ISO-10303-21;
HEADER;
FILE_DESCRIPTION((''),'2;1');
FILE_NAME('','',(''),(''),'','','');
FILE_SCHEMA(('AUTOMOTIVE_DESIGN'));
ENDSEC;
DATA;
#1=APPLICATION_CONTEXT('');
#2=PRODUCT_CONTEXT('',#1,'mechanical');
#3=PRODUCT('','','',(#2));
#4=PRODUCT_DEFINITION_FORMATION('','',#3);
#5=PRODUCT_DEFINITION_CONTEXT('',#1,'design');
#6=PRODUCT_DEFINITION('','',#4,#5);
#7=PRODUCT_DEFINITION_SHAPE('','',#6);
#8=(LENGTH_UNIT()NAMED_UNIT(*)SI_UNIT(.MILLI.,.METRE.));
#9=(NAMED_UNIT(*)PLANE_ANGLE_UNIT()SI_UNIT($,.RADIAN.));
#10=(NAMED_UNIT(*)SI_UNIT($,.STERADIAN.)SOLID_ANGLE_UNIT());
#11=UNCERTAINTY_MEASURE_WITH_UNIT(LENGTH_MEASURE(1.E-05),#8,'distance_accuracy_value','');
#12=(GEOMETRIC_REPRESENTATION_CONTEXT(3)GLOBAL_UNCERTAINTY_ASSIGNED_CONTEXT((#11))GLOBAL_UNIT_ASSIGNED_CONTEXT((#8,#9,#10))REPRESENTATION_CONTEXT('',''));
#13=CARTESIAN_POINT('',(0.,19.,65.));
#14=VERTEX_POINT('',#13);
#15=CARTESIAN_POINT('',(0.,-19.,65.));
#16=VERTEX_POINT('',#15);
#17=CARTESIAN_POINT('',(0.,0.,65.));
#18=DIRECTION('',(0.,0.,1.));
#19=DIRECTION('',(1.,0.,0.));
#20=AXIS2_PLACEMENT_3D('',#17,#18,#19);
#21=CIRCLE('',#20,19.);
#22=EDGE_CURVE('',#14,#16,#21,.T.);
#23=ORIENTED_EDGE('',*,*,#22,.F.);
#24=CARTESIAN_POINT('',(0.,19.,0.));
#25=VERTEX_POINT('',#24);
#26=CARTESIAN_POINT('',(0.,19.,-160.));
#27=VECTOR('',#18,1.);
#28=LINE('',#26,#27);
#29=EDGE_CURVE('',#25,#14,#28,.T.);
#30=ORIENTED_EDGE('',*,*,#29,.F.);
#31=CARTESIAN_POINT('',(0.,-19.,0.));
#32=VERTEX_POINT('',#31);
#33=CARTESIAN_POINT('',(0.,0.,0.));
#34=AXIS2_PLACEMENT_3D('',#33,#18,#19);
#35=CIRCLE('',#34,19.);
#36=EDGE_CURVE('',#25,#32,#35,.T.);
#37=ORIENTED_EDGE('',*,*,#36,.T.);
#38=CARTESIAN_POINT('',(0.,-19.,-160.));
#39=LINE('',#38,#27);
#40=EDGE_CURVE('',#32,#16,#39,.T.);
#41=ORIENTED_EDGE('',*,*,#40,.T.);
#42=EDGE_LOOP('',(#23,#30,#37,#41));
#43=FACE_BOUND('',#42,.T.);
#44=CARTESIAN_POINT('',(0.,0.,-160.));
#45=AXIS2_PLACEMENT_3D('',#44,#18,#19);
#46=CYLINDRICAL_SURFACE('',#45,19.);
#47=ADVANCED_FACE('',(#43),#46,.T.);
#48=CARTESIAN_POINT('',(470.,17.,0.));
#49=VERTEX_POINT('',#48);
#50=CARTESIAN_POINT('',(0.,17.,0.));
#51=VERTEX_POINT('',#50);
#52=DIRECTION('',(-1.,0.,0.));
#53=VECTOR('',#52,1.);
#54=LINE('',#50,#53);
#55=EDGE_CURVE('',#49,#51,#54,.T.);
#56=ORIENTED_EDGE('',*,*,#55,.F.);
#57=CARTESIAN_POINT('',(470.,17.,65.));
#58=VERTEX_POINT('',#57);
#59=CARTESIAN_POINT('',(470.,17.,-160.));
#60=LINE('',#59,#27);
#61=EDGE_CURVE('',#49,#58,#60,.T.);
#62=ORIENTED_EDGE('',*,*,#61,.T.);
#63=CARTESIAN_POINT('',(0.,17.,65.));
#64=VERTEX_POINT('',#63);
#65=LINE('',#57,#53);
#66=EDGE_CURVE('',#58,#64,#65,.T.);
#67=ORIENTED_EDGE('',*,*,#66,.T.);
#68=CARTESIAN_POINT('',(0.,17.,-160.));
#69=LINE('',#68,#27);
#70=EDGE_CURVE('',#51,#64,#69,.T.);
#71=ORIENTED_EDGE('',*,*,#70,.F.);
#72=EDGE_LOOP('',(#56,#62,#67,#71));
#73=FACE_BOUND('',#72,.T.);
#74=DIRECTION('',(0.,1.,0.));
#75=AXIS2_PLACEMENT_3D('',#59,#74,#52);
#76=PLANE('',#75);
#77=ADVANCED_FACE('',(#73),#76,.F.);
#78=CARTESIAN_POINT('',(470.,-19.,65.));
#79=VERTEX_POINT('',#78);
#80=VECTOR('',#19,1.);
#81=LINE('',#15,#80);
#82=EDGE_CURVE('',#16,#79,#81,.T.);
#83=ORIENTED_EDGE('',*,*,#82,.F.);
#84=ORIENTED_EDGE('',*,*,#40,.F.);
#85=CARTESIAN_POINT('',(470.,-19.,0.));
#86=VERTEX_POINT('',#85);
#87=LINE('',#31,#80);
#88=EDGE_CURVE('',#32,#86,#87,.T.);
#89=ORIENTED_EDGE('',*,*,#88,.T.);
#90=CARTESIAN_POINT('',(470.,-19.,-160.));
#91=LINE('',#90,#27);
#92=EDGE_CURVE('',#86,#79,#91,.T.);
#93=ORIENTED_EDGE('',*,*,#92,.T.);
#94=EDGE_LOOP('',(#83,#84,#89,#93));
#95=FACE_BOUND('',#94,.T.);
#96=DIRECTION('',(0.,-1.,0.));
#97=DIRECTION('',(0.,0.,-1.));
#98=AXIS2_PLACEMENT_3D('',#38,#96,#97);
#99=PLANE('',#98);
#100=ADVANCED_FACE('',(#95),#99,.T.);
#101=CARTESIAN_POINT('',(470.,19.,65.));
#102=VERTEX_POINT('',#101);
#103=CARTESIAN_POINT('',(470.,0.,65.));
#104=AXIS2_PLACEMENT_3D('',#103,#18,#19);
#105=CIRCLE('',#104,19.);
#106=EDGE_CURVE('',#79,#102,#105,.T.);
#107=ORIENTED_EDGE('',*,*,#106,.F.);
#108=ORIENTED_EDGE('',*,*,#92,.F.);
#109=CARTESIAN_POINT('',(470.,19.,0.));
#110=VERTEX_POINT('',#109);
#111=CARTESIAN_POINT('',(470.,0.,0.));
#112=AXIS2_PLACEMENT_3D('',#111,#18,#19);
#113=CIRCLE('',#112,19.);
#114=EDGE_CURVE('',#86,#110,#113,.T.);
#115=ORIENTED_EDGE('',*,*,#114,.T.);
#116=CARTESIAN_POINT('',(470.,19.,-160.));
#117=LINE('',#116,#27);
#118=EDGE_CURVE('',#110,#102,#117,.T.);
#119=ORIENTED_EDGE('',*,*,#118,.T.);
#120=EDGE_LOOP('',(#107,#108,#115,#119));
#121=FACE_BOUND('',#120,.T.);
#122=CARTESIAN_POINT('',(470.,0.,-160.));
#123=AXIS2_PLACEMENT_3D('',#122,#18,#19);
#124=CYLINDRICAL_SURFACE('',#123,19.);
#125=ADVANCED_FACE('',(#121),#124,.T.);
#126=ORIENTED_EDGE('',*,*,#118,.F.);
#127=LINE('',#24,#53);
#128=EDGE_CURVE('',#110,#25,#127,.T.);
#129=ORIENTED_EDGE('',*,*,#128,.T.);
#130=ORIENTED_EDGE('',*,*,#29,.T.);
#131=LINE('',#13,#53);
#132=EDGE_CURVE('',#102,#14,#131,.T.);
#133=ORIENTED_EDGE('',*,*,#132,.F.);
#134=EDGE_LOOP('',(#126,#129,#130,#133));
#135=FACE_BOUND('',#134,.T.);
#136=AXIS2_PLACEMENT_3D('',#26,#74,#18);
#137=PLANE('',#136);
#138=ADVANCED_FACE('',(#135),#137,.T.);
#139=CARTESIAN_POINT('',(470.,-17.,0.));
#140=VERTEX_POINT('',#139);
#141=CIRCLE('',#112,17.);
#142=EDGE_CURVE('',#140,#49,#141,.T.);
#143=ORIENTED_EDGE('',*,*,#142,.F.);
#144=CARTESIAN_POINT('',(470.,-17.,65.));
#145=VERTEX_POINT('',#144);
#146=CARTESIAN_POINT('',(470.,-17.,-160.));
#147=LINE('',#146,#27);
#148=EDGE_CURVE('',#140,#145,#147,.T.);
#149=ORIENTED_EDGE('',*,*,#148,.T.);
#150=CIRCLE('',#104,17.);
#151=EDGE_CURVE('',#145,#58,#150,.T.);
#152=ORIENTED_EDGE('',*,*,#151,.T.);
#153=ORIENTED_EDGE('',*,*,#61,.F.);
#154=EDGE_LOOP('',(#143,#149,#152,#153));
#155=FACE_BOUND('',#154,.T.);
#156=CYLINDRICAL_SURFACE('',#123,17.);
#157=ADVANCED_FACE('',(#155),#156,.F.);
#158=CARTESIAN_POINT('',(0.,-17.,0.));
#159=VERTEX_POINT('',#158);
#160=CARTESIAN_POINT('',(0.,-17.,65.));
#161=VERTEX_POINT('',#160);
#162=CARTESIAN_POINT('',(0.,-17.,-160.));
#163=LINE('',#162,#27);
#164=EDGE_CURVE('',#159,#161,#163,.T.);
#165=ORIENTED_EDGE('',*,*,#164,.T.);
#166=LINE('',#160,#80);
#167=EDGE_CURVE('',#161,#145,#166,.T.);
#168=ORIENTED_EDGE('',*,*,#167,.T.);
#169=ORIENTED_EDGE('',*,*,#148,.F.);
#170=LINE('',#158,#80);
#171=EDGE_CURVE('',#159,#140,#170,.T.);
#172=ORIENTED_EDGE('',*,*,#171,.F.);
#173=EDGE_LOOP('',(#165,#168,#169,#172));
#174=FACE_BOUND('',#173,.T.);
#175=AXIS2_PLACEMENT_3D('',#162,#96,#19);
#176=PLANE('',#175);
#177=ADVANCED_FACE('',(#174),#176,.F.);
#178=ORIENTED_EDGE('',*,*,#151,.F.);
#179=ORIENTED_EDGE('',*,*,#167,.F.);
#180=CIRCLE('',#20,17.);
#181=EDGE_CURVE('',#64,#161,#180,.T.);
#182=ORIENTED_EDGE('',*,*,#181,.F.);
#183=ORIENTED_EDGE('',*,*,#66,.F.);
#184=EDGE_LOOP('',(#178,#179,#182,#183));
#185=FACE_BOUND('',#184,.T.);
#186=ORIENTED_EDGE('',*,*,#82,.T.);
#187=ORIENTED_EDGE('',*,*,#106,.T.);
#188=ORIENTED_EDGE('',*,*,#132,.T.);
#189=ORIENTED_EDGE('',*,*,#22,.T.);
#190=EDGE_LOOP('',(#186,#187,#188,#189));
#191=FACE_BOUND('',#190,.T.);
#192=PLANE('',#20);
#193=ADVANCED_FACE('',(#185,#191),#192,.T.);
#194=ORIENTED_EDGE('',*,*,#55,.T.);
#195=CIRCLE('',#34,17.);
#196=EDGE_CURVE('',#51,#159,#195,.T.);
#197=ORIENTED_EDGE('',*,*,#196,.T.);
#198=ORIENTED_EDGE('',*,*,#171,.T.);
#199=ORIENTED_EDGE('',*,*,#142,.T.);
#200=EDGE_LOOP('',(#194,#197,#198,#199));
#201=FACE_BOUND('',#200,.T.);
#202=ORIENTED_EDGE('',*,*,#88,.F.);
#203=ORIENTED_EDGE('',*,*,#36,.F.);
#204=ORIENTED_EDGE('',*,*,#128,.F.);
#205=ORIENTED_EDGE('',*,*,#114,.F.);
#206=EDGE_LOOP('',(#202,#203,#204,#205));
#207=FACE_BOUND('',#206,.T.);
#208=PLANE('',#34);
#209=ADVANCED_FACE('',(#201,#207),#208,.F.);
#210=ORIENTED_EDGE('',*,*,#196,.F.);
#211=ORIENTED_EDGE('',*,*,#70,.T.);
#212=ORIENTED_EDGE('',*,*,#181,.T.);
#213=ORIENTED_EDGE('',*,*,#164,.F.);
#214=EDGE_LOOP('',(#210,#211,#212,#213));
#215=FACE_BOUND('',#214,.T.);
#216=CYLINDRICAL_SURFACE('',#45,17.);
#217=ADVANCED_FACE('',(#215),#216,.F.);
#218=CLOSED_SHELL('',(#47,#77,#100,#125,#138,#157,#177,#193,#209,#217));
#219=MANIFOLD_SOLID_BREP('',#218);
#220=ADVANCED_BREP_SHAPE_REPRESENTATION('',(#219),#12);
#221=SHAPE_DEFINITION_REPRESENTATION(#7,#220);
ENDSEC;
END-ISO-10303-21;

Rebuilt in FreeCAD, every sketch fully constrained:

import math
import FreeCAD as App
import Part
import Sketcher

V = App.Vector
Q = App.Units.Quantity

doc = App.newDocument("Part")
body = doc.addObject("PartDesign::Body", "Body")

# Sketch on XY plane
sketch1 = body.newObject("Sketcher::SketchObject", "Sketch")
sketch1.AttachmentSupport = (doc.getObject("XY_Plane"), [""])
sketch1.MapMode = "FlatFace"
sketch1.addGeometry(Part.LineSegment(V(470, 18, 0), V(0, 18, 0)), False)
sketch1.addGeometry(Part.ArcOfCircle(Part.Circle(V(0, 0, 0), V(0, 0, 1), 18), math.radians(90), math.radians(270)), False)
sketch1.addGeometry(Part.LineSegment(V(0, -18, 0), V(470, -18, 0)), False)
sketch1.addGeometry(Part.ArcOfCircle(Part.Circle(V(470, 0, 0), V(0, 0, 1), 18), math.radians(-90), math.radians(90)), False)
sketch1.addConstraint(Sketcher.Constraint("Tangent", 0, 2, 1, 1))
sketch1.addConstraint(Sketcher.Constraint("Tangent", 1, 2, 2, 1))
sketch1.addConstraint(Sketcher.Constraint("Tangent", 2, 2, 3, 1))
sketch1.addConstraint(Sketcher.Constraint("Tangent", 3, 2, 0, 1))
sketch1.addConstraint(Sketcher.Constraint("Horizontal", 0))
sketch1.addConstraint(Sketcher.Constraint("Horizontal", 2))
sketch1.addConstraint(Sketcher.Constraint("Coincident", 1, 3, -1, 1))
sketch1.addConstraint(Sketcher.Constraint("Radius", 1, Q("18 mm")))
sketch1.addConstraint(Sketcher.Constraint("DistanceX", 0, 2, 0, 1, Q("470 mm")))
pad1 = body.newObject("PartDesign::Pad", "Pad")
pad1.Profile = sketch1
pad1.Length = 65

# Sketch on XY plane
sketch2 = body.newObject("Sketcher::SketchObject", "Sketch001")
sketch2.AttachmentSupport = (doc.getObject("XY_Plane"), [""])
sketch2.MapMode = "FlatFace"
sketch2.AttachmentOffset = App.Placement(V(0, 0, 65), App.Rotation())
sketch2.addGeometry(Part.LineSegment(V(0, -16, 0), V(470, -16, 0)), False)
sketch2.addGeometry(Part.ArcOfCircle(Part.Circle(V(470, 0, 0), V(0, 0, 1), 16), math.radians(-90), math.radians(90)), False)
sketch2.addGeometry(Part.LineSegment(V(470, 16, 0), V(0, 16, 0)), False)
sketch2.addGeometry(Part.ArcOfCircle(Part.Circle(V(0, 0, 0), V(0, 0, 1), 16), math.radians(90), math.radians(270)), False)
sketch2.addConstraint(Sketcher.Constraint("Tangent", 0, 2, 1, 1))
sketch2.addConstraint(Sketcher.Constraint("Tangent", 1, 2, 2, 1))
sketch2.addConstraint(Sketcher.Constraint("Tangent", 2, 2, 3, 1))
sketch2.addConstraint(Sketcher.Constraint("Tangent", 3, 2, 0, 1))
sketch2.addConstraint(Sketcher.Constraint("Horizontal", 0))
sketch2.addConstraint(Sketcher.Constraint("Horizontal", 2))
sketch2.addConstraint(Sketcher.Constraint("Coincident", 3, 3, -1, 1))
sketch2.addConstraint(Sketcher.Constraint("Radius", 1, Q("16 mm")))
sketch2.addConstraint(Sketcher.Constraint("DistanceX", 0, 1, 0, 2, Q("470 mm")))
pocket1 = body.newObject("PartDesign::Pocket", "Pocket")
pocket1.Profile = sketch2
pocket1.Length = 150

# Sketch on XY plane
sketch3 = body.newObject("Sketcher::SketchObject", "Sketch002")
sketch3.AttachmentSupport = (doc.getObject("XY_Plane"), [""])
sketch3.MapMode = "FlatFace"
sketch3.AttachmentOffset = App.Placement(V(0, 0, 65), App.Rotation())
sketch3.addGeometry(Part.LineSegment(V(0, -20, 0), V(470, -20, 0)), False)
sketch3.addGeometry(Part.ArcOfCircle(Part.Circle(V(470, 0, 0), V(0, 0, 1), 20), math.radians(-90), math.radians(90)), False)
sketch3.addGeometry(Part.LineSegment(V(470, 20, 0), V(0, 20, 0)), False)
sketch3.addGeometry(Part.ArcOfCircle(Part.Circle(V(0, 0, 0), V(0, 0, 1), 20), math.radians(90), math.radians(270)), False)
sketch3.addConstraint(Sketcher.Constraint("Tangent", 0, 2, 1, 1))
sketch3.addConstraint(Sketcher.Constraint("Tangent", 1, 2, 2, 1))
sketch3.addConstraint(Sketcher.Constraint("Tangent", 2, 2, 3, 1))
sketch3.addConstraint(Sketcher.Constraint("Tangent", 3, 2, 0, 1))
sketch3.addConstraint(Sketcher.Constraint("Horizontal", 0))
sketch3.addConstraint(Sketcher.Constraint("Horizontal", 2))
sketch3.addConstraint(Sketcher.Constraint("Coincident", 3, 3, -1, 1))
sketch3.addConstraint(Sketcher.Constraint("Radius", 1, Q("20 mm")))
sketch3.addConstraint(Sketcher.Constraint("DistanceX", 0, 1, 0, 2, Q("470 mm")))
pad2 = body.newObject("PartDesign::Pad", "Pad001")
pad2.Profile = sketch3
pad2.Length = 65
pad2.Reversed = True

# Sketch on XY plane
sketch4 = body.newObject("Sketcher::SketchObject", "Sketch003")
sketch4.AttachmentSupport = (doc.getObject("XY_Plane"), [""])
sketch4.MapMode = "FlatFace"
sketch4.AttachmentOffset = App.Placement(V(0, 0, 65), App.Rotation())
sketch4.addGeometry(Part.LineSegment(V(0, -18, 0), V(470, -18, 0)), False)
sketch4.addGeometry(Part.ArcOfCircle(Part.Circle(V(470, 0, 0), V(0, 0, 1), 18), math.radians(-90), math.radians(90)), False)
sketch4.addGeometry(Part.LineSegment(V(470, 18, 0), V(0, 18, 0)), False)
sketch4.addGeometry(Part.ArcOfCircle(Part.Circle(V(0, 0, 0), V(0, 0, 1), 18), math.radians(90), math.radians(270)), False)
sketch4.addConstraint(Sketcher.Constraint("Tangent", 0, 2, 1, 1))
sketch4.addConstraint(Sketcher.Constraint("Tangent", 1, 2, 2, 1))
sketch4.addConstraint(Sketcher.Constraint("Tangent", 2, 2, 3, 1))
sketch4.addConstraint(Sketcher.Constraint("Tangent", 3, 2, 0, 1))
sketch4.addConstraint(Sketcher.Constraint("Horizontal", 0))
sketch4.addConstraint(Sketcher.Constraint("Horizontal", 2))
sketch4.addConstraint(Sketcher.Constraint("Coincident", 3, 3, -1, 1))
sketch4.addConstraint(Sketcher.Constraint("Radius", 1, Q("18 mm")))
sketch4.addConstraint(Sketcher.Constraint("DistanceX", 0, 1, 0, 2, Q("470 mm")))
pocket2 = body.newObject("PartDesign::Pocket", "Pocket001")
pocket2.Profile = sketch4
pocket2.Length = 168

# Sketch on XY plane
sketch5 = body.newObject("Sketcher::SketchObject", "Sketch004")
sketch5.AttachmentSupport = (doc.getObject("XY_Plane"), [""])
sketch5.MapMode = "FlatFace"
sketch5.AttachmentOffset = App.Placement(V(0, 0, 65), App.Rotation())
sketch5.addGeometry(Part.LineSegment(V(0, -18, 0), V(470, -18, 0)), False)
sketch5.addGeometry(Part.ArcOfCircle(Part.Circle(V(470, 0, 0), V(0, 0, 1), 18), math.radians(-90), math.radians(90)), False)
sketch5.addGeometry(Part.LineSegment(V(470, 18, 0), V(0, 18, 0)), False)
sketch5.addGeometry(Part.ArcOfCircle(Part.Circle(V(0, 0, 0), V(0, 0, 1), 18), math.radians(90), math.radians(270)), False)
sketch5.addConstraint(Sketcher.Constraint("Tangent", 0, 2, 1, 1))
sketch5.addConstraint(Sketcher.Constraint("Tangent", 1, 2, 2, 1))
sketch5.addConstraint(Sketcher.Constraint("Tangent", 2, 2, 3, 1))
sketch5.addConstraint(Sketcher.Constraint("Tangent", 3, 2, 0, 1))
sketch5.addConstraint(Sketcher.Constraint("Horizontal", 0))
sketch5.addConstraint(Sketcher.Constraint("Horizontal", 2))
sketch5.addConstraint(Sketcher.Constraint("Coincident", 3, 3, -1, 1))
sketch5.addConstraint(Sketcher.Constraint("Radius", 1, Q("18 mm")))
sketch5.addConstraint(Sketcher.Constraint("DistanceX", 0, 1, 0, 2, Q("470 mm")))
pad3 = body.newObject("PartDesign::Pad", "Pad002")
pad3.Profile = sketch5
pad3.Length = 65
pad3.Reversed = True

# Sketch on XY plane
sketch6 = body.newObject("Sketcher::SketchObject", "Sketch005")
sketch6.AttachmentSupport = (doc.getObject("XY_Plane"), [""])
sketch6.MapMode = "FlatFace"
sketch6.AttachmentOffset = App.Placement(V(0, 0, 65), App.Rotation())
sketch6.addGeometry(Part.LineSegment(V(0, -17, 0), V(470, -17, 0)), False)
sketch6.addGeometry(Part.ArcOfCircle(Part.Circle(V(470, 0, 0), V(0, 0, 1), 17), math.radians(-90), math.radians(90)), False)
sketch6.addGeometry(Part.LineSegment(V(470, 17, 0), V(0, 17, 0)), False)
sketch6.addGeometry(Part.ArcOfCircle(Part.Circle(V(0, 0, 0), V(0, 0, 1), 17), math.radians(90), math.radians(270)), False)
sketch6.addConstraint(Sketcher.Constraint("Tangent", 0, 2, 1, 1))
sketch6.addConstraint(Sketcher.Constraint("Tangent", 1, 2, 2, 1))
sketch6.addConstraint(Sketcher.Constraint("Tangent", 2, 2, 3, 1))
sketch6.addConstraint(Sketcher.Constraint("Tangent", 3, 2, 0, 1))
sketch6.addConstraint(Sketcher.Constraint("Horizontal", 0))
sketch6.addConstraint(Sketcher.Constraint("Horizontal", 2))
sketch6.addConstraint(Sketcher.Constraint("Coincident", 3, 3, -1, 1))
sketch6.addConstraint(Sketcher.Constraint("Radius", 1, Q("17 mm")))
sketch6.addConstraint(Sketcher.Constraint("DistanceX", 0, 1, 0, 2, Q("470 mm")))
pocket3 = body.newObject("PartDesign::Pocket", "Pocket002")
pocket3.Profile = sketch6
pocket3.Length = 225

# Sketch on XY plane
sketch7 = body.newObject("Sketcher::SketchObject", "Sketch006")
sketch7.AttachmentSupport = (doc.getObject("XY_Plane"), [""])
sketch7.MapMode = "FlatFace"
sketch7.AttachmentOffset = App.Placement(V(0, 0, 65), App.Rotation())
sketch7.addGeometry(Part.LineSegment(V(470, 20, 0), V(0, 20, 0)), False)
sketch7.addGeometry(Part.ArcOfCircle(Part.Circle(V(0, 0, 0), V(0, 0, 1), 20), math.radians(90), math.radians(270)), False)
sketch7.addGeometry(Part.LineSegment(V(0, -20, 0), V(470, -20, 0)), False)
sketch7.addGeometry(Part.ArcOfCircle(Part.Circle(V(470, 0, 0), V(0, 0, 1), 20), math.radians(-90), math.radians(90)), False)
sketch7.addGeometry(Part.LineSegment(V(0, 19, 0), V(470, 19, 0)), False)
sketch7.addGeometry(Part.ArcOfCircle(Part.Circle(V(470, 0, 0), V(0, 0, 1), 19), math.radians(-90), math.radians(90)), False)
sketch7.addGeometry(Part.LineSegment(V(470, -19, 0), V(0, -19, 0)), False)
sketch7.addGeometry(Part.ArcOfCircle(Part.Circle(V(0, 0, 0), V(0, 0, 1), 19), math.radians(90), math.radians(270)), False)
sketch7.addConstraint(Sketcher.Constraint("Tangent", 0, 2, 1, 1))
sketch7.addConstraint(Sketcher.Constraint("Tangent", 1, 2, 2, 1))
sketch7.addConstraint(Sketcher.Constraint("Tangent", 2, 2, 3, 1))
sketch7.addConstraint(Sketcher.Constraint("Tangent", 3, 2, 0, 1))
sketch7.addConstraint(Sketcher.Constraint("Tangent", 4, 2, 5, 2))
sketch7.addConstraint(Sketcher.Constraint("Tangent", 5, 1, 6, 1))
sketch7.addConstraint(Sketcher.Constraint("Tangent", 6, 2, 7, 2))
sketch7.addConstraint(Sketcher.Constraint("Tangent", 7, 1, 4, 1))
sketch7.addConstraint(Sketcher.Constraint("Horizontal", 0))
sketch7.addConstraint(Sketcher.Constraint("Horizontal", 2))
sketch7.addConstraint(Sketcher.Constraint("Horizontal", 4))
sketch7.addConstraint(Sketcher.Constraint("Horizontal", 6))
sketch7.addConstraint(Sketcher.Constraint("Coincident", 1, 3, -1, 1))
sketch7.addConstraint(Sketcher.Constraint("Coincident", 7, 3, -1, 1))
sketch7.addConstraint(Sketcher.Constraint("Vertical", 5, 3, 2, 2))
sketch7.addConstraint(Sketcher.Constraint("Radius", 1, Q("20 mm")))
sketch7.addConstraint(Sketcher.Constraint("Radius", 5, Q("19 mm")))
sketch7.addConstraint(Sketcher.Constraint("DistanceX", 0, 2, 0, 1, Q("470 mm")))
pocket4 = body.newObject("PartDesign::Pocket", "Pocket003")
pocket4.Profile = sketch7
pocket4.Length = 225

doc.recompute()
